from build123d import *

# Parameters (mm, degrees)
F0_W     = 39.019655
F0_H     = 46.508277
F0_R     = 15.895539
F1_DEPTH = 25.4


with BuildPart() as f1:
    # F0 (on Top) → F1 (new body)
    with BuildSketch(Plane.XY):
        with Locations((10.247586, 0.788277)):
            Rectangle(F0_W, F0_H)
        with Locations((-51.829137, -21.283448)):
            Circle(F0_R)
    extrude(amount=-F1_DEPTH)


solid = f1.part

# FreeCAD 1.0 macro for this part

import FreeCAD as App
import Part
import Sketcher

V = App.Vector


def add_polygon(sketch, points):
    """Adds a closed chain of lines whose ends are joined by coincident constraints."""
    first, n = sketch.GeometryCount, len(points)
    for a, b in zip(points, points[1:] + points[:1]):
        sketch.addGeometry(Part.LineSegment(App.Vector(*a, 0), App.Vector(*b, 0)), False)
    for i in range(n):
        sketch.addConstraint(Sketcher.Constraint("Coincident", first + i, 2, first + (i + 1) % n, 1))

doc = App.newDocument("Part")
params = doc.addObject("Spreadsheet::Sheet", "Params")
for row, (alias, value) in enumerate([
    ("pad1_length", "1 in"),
], start=1):
    params.set(f"A{row}", alias)
    params.set(f"B{row}", "=" + value)
    params.setAlias(f"B{row}", alias)

body = doc.addObject("PartDesign::Body", "Body")
body.AllowCompound = True

sketch1 = body.newObject("Sketcher::SketchObject", "Sketch")
sketch1.AttachmentSupport = (doc.getObject("XY_Plane"), [""])
sketch1.MapMode = "FlatFace"
add_polygon(sketch1, [(-9.262242, 24.042416), (-9.262242, -22.465861), (29.757413, -22.465861), (29.757413, 24.042416)])
sketch1.addGeometry(Part.Circle(V(-51.829137, -21.283448, 0), V(0, 0, 1), 15.895539), False)
sketch1.addConstraint([
    Sketcher.Constraint("Vertical", 0),
    Sketcher.Constraint("Horizontal", 1),
    Sketcher.Constraint("Vertical", 2),
    Sketcher.Constraint("Horizontal", 3),
    Sketcher.Constraint("Diameter", 4, 31.791078),
    Sketcher.Constraint("DistanceX", 1, 1, 1, 2, 39.019655),
    Sketcher.Constraint("DistanceY", 0, 2, 0, 1, 46.508277),
    Sketcher.Constraint("DistanceY", 4, 3, -1, 1, 21.283448),
    Sketcher.Constraint("DistanceX", 0, 2, -1, 1, 9.262242),
    Sketcher.Constraint("DistanceY", 0, 2, -1, 1, 22.465861),
    Sketcher.Constraint("DistanceX", 4, 3, 1, 2, 81.586551),
])
pad1 = body.newObject("PartDesign::Pad", "Pad")
pad1.Profile = sketch1
pad1.setExpression("Length", "Params.pad1_length")
pad1.Reversed = True

doc.recompute()
